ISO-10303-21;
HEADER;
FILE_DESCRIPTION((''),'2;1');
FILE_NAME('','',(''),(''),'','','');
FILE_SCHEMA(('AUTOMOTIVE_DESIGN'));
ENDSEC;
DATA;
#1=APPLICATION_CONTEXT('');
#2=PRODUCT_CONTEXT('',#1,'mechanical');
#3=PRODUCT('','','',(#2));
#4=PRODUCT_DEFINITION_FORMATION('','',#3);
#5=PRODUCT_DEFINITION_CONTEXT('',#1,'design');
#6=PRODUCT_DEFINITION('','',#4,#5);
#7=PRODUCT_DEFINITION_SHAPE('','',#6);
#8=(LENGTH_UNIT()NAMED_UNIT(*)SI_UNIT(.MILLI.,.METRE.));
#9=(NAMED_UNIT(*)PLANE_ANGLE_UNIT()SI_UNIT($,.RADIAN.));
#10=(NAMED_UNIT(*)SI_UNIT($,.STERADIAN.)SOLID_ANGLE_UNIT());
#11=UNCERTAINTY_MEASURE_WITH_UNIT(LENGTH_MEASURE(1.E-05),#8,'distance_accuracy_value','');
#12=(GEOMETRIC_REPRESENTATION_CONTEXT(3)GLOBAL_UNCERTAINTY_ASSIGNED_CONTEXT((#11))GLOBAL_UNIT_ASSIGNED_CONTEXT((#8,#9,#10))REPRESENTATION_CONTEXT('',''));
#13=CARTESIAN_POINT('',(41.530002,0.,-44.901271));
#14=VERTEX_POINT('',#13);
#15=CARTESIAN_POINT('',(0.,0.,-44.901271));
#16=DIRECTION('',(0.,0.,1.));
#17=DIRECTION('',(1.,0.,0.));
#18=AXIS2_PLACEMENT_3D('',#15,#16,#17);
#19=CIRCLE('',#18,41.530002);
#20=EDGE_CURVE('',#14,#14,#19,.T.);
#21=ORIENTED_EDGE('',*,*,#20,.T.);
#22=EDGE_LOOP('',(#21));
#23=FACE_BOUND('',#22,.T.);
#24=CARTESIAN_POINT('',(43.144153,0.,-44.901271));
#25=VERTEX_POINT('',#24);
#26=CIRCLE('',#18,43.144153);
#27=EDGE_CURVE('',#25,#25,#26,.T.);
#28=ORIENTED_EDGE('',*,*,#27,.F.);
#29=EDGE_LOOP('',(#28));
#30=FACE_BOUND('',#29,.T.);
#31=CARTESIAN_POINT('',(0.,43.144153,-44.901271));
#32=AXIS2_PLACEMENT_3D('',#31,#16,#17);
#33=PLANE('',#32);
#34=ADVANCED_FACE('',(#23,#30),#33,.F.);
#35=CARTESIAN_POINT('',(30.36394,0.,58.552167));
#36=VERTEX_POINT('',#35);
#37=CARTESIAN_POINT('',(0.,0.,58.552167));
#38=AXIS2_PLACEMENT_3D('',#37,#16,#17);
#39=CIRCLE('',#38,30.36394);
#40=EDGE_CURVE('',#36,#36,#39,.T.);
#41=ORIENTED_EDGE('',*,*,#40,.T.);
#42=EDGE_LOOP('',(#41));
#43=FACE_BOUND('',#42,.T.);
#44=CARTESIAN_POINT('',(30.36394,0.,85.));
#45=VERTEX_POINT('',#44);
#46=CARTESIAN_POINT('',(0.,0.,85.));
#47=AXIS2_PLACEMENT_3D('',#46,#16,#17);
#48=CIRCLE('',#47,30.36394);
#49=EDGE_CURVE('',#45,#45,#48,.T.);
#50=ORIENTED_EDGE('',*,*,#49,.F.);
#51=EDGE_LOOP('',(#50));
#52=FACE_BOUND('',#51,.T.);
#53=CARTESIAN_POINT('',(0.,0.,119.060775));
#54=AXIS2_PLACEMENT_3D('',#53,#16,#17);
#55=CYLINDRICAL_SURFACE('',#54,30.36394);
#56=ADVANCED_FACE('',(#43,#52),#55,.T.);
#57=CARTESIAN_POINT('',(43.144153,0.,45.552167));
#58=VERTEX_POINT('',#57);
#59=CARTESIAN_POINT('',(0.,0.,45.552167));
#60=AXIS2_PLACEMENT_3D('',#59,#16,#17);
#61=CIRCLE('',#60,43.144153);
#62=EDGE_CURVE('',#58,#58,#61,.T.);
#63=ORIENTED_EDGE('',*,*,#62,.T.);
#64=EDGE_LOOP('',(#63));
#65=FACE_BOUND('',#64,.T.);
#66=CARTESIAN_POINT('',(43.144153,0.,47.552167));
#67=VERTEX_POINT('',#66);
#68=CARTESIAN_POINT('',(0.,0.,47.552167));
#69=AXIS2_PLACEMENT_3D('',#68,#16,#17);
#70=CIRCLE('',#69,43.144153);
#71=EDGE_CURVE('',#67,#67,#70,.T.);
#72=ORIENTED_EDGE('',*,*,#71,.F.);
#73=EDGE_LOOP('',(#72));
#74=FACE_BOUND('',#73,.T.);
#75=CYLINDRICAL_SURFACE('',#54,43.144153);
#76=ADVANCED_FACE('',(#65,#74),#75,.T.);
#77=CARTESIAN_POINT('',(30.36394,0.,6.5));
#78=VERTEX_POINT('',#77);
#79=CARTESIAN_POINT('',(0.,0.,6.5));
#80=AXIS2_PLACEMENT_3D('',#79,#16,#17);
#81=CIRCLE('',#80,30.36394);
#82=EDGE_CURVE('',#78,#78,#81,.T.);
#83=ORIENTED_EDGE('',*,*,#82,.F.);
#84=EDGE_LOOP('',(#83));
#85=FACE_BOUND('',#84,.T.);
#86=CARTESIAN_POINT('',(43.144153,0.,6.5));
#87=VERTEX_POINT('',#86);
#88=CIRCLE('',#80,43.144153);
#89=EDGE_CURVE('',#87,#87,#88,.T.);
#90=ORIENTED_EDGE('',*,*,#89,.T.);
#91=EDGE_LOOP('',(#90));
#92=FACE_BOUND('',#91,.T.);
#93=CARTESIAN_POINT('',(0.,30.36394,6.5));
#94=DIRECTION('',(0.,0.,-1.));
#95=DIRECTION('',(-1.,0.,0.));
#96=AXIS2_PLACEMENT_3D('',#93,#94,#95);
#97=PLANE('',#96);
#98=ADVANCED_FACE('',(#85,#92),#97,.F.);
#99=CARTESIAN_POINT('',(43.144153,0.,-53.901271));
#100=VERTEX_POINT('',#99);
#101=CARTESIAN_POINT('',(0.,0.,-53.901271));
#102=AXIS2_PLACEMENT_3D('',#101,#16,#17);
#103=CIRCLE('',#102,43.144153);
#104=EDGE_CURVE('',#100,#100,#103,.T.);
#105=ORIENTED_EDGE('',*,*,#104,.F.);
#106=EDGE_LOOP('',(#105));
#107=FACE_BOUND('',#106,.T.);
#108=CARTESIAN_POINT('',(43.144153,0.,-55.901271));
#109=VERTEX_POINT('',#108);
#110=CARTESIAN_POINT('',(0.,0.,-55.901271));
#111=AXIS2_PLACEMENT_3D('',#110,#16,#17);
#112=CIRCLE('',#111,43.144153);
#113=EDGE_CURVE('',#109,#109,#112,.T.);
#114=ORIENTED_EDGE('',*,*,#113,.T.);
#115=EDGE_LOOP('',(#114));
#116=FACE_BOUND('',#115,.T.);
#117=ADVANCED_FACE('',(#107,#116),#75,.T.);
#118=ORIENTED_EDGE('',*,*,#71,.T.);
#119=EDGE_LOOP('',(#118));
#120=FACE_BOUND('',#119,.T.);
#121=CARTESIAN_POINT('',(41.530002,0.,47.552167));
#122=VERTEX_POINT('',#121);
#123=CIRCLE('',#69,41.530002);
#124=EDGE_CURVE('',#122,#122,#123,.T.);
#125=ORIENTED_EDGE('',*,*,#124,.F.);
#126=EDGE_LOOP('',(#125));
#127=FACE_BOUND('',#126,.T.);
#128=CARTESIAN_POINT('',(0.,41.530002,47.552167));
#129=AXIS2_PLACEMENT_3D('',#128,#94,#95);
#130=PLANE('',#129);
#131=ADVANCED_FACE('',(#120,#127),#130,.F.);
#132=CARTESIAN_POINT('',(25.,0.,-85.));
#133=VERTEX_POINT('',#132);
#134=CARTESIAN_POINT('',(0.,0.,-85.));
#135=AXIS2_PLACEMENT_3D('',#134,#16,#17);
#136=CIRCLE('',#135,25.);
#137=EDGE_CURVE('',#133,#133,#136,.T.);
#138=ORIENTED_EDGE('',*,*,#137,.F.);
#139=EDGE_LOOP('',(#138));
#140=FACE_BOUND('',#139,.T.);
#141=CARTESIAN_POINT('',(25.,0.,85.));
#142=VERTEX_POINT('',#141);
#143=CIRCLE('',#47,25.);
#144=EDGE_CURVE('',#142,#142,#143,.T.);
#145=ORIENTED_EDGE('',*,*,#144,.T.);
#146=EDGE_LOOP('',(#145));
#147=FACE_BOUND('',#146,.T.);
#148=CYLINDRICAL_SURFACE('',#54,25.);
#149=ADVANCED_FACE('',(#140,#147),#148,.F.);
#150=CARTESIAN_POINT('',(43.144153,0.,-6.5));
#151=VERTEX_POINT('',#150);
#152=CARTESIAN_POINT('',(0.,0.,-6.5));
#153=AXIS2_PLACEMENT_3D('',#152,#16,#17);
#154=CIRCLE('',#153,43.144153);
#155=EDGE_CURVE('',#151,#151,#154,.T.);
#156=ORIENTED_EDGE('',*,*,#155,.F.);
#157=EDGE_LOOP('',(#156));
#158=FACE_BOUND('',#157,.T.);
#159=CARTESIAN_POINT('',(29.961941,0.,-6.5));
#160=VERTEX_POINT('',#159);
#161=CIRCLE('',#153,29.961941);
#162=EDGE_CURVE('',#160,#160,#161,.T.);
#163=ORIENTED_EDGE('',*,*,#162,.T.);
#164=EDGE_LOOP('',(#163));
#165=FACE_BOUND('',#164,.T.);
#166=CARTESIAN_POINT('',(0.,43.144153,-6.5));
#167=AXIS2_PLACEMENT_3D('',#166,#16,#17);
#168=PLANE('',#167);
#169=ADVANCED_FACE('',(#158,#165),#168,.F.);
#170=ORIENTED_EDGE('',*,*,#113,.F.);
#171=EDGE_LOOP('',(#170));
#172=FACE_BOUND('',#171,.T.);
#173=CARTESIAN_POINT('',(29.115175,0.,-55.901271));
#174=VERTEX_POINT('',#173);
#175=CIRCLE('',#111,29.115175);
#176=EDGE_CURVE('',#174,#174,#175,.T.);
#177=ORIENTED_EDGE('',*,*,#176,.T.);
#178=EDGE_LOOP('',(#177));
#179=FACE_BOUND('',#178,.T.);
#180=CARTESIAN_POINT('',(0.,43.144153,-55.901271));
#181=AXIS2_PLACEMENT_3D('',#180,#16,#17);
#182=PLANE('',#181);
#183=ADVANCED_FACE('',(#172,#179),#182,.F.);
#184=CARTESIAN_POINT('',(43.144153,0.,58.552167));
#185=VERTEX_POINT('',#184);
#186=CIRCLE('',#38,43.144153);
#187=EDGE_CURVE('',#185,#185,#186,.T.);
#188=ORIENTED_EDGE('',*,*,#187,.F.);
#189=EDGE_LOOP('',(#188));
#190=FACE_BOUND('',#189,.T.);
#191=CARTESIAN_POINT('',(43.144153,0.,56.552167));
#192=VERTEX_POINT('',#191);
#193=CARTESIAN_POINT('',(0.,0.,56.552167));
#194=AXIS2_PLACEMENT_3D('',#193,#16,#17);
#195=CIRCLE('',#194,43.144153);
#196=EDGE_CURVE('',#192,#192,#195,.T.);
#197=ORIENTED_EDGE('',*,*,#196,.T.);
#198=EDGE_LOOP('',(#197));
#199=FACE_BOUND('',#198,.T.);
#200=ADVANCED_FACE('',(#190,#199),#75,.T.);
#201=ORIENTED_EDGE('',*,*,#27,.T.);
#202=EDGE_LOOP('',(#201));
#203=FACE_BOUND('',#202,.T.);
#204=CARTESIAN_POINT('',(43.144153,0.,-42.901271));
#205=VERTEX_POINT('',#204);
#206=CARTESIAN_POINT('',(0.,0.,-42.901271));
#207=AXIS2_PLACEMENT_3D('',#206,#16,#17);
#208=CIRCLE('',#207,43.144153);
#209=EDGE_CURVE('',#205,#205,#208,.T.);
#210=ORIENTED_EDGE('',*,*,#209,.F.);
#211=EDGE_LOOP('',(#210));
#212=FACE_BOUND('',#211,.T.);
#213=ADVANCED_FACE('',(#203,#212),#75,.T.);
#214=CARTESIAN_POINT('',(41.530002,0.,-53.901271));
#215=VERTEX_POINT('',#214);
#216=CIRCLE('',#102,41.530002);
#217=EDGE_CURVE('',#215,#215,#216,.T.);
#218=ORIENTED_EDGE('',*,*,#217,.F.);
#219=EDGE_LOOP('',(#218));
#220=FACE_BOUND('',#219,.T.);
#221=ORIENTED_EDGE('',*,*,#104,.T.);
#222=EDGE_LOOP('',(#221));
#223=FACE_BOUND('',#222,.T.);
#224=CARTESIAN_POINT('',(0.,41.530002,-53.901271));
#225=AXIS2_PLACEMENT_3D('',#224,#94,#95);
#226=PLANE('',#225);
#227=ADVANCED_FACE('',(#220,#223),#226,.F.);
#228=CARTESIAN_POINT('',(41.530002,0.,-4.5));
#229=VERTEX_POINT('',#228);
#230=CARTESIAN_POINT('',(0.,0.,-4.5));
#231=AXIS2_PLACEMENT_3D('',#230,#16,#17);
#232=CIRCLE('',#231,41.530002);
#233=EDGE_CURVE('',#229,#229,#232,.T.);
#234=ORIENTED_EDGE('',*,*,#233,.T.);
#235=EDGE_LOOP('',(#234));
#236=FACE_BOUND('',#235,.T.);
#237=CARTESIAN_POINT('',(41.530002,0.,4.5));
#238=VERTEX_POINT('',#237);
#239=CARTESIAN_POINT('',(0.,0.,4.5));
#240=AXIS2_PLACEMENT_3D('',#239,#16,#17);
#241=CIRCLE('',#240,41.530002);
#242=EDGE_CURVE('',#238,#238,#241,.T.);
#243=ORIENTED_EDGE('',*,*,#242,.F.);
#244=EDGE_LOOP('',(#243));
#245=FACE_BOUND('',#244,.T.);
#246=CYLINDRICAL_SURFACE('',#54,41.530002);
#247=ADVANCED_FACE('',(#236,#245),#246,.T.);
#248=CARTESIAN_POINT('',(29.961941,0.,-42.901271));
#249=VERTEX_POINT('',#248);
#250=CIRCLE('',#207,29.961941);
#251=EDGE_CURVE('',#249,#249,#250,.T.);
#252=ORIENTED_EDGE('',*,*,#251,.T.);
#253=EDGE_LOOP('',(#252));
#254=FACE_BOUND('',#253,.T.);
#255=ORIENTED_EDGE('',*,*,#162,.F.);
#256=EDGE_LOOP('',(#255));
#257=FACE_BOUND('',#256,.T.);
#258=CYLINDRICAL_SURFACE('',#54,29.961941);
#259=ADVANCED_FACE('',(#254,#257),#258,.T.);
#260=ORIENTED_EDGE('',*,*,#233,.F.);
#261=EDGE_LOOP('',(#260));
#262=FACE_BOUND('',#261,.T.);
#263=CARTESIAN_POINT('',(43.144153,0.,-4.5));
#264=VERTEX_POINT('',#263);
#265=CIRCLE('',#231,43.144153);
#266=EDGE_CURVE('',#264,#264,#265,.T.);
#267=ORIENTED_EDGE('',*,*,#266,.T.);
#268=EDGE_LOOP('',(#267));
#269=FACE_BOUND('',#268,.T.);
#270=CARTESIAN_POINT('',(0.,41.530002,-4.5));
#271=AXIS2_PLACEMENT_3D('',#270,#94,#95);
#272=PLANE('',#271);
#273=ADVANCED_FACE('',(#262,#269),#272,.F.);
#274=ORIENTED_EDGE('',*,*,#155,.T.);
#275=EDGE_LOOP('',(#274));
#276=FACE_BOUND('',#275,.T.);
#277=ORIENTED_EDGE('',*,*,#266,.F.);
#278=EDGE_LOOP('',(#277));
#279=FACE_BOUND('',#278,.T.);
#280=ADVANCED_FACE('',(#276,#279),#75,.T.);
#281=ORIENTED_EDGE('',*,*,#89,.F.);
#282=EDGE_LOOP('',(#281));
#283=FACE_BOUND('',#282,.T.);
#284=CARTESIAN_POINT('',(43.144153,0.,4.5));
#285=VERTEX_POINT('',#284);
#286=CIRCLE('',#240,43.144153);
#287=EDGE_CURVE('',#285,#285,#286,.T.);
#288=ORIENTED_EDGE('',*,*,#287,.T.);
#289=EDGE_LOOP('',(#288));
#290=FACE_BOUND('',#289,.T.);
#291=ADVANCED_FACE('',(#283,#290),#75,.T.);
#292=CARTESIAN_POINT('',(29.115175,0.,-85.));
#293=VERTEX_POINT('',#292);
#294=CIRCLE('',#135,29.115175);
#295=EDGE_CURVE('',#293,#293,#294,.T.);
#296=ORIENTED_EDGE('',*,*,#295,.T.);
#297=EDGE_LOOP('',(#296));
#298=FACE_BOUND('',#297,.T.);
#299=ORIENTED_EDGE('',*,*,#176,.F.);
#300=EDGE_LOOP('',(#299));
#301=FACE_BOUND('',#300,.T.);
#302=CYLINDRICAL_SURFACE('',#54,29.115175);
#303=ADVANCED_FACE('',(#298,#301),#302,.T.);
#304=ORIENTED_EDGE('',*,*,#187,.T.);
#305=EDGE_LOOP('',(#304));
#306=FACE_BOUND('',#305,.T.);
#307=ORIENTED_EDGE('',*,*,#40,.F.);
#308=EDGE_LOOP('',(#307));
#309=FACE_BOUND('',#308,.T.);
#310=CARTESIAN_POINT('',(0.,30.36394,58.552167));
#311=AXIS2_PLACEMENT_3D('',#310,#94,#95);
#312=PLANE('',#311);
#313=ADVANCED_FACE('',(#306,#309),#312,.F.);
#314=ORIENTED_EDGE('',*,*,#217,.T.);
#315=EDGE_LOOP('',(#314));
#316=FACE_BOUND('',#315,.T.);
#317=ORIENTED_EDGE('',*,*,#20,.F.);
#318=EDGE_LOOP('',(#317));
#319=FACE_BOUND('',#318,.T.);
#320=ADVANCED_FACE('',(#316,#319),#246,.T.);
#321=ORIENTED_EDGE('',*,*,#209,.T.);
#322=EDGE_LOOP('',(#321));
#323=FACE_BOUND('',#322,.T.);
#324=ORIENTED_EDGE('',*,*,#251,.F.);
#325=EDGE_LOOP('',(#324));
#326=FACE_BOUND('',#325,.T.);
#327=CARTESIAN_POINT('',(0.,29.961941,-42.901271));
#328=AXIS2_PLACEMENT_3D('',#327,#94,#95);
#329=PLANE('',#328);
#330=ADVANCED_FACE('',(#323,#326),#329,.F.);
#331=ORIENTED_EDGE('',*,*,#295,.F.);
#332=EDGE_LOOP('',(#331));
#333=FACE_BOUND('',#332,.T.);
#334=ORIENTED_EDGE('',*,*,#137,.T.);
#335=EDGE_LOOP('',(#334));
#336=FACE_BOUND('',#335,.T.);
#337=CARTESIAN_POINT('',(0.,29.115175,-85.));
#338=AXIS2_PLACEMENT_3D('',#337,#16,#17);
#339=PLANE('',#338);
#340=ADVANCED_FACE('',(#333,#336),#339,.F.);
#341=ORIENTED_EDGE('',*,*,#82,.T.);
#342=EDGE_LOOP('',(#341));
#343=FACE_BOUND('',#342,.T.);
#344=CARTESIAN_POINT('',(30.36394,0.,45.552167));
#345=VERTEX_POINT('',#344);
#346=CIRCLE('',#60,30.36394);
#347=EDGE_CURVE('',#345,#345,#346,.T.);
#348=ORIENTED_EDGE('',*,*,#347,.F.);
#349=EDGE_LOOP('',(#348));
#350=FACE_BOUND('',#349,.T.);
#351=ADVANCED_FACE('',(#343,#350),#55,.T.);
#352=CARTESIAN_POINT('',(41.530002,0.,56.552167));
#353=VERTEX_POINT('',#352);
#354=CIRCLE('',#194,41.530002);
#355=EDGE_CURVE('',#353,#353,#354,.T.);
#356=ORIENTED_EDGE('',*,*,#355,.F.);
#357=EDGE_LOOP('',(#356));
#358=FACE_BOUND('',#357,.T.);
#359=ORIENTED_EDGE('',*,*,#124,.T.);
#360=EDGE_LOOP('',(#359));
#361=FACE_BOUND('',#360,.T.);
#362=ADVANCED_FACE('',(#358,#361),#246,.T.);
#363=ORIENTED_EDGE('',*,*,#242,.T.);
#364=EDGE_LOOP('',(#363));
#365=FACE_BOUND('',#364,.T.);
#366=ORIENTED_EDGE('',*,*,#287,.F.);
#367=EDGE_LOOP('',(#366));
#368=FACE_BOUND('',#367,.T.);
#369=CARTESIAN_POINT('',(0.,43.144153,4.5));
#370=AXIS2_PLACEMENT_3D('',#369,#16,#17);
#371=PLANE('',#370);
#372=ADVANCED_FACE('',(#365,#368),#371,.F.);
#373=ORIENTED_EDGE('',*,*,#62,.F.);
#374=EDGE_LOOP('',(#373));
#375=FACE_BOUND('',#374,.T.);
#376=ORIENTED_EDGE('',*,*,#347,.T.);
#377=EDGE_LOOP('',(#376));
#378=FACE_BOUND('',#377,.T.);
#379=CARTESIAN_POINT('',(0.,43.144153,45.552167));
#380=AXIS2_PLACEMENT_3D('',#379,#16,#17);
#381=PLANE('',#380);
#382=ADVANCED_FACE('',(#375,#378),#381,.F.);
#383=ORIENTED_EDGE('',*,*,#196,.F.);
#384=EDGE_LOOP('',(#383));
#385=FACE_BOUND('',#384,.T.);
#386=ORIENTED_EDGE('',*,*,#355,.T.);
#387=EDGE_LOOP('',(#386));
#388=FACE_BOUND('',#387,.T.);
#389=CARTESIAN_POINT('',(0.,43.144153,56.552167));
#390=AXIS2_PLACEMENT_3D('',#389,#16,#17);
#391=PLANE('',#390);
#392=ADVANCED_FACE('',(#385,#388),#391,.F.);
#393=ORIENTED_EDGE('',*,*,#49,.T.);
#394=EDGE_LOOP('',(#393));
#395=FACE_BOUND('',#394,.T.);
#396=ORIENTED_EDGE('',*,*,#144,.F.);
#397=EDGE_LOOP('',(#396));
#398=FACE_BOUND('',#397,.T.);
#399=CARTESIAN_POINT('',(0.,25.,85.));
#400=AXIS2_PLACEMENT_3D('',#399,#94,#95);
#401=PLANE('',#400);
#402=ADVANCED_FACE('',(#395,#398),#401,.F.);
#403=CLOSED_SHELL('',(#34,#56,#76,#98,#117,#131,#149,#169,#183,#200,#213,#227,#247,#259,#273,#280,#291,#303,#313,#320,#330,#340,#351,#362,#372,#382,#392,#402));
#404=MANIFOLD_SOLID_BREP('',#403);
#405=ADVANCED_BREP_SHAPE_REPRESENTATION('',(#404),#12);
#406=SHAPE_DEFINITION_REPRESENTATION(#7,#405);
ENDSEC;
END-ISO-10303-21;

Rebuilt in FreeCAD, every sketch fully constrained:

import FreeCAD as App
import Part
import Sketcher
from FreeCAD import Vector


def add_polygon(sketch, points):
    """Adds a closed chain of lines whose ends are joined by coincident constraints."""
    first, n = sketch.GeometryCount, len(points)
    for a, b in zip(points, points[1:] + points[:1]):
        sketch.addGeometry(Part.LineSegment(App.Vector(*a, 0), App.Vector(*b, 0)), False)
    for i in range(n):
        sketch.addConstraint(Sketcher.Constraint("Coincident", first + i, 2, first + (i + 1) % n, 1))

doc = App.newDocument("Part")
params = doc.addObject("Spreadsheet::Sheet", "Params")
for row, (alias, value) in enumerate([
    ("sketch1_height", "170 mm"),
    ("sketch1_height2", "2 mm"),
    ("sketch1_height3", "9 mm"),
    ("revolution_angle", "360 deg"),
], start=1):
    params.set(f"A{row}", alias)
    params.set(f"B{row}", "=" + value)
    params.setAlias(f"B{row}", alias)

body = doc.addObject("PartDesign::Body", "Body")

# Sketch on YZ plane
sketch1 = body.newObject("Sketcher::SketchObject", "Sketch")
sketch1.AttachmentSupport = (doc.getObject("YZ_Plane"), [""])
sketch1.MapMode = "FlatFace"
add_polygon(sketch1, [(25, 85), (25, -85), (29.1, -85), (29.1, -55.9), (43.1, -55.9), (43.1, -53.9), (41.5, -53.9), (41.5, -44.9), (43.1, -44.9), (43.1, -42.9), (30, -42.9), (30, -6.5), (43.1, -6.5), (43.1, -4.5), (41.5, -4.5), (41.5, 4.5), (43.1, 4.5), (43.1, 6.5), (30.4, 6.5), (30.4, 45.6), (43.1, 45.6), (43.1, 47.6), (41.5, 47.6), (41.5, 56.6), (43.1, 56.6), (43.1, 58.6), (30.4, 58.6), (30.4, 85)])  # lines 0-27
sketch1.addConstraint([
    Sketcher.Constraint("Vertical", 0),
    Sketcher.Constraint("Horizontal", 1),
    Sketcher.Constraint("Vertical", 2),
    Sketcher.Constraint("Horizontal", 3),
    Sketcher.Constraint("Vertical", 4),
    Sketcher.Constraint("Horizontal", 5),
    Sketcher.Constraint("Vertical", 6),
    Sketcher.Constraint("Horizontal", 7),
    Sketcher.Constraint("Vertical", 8),
    Sketcher.Constraint("Horizontal", 9),
    Sketcher.Constraint("Vertical", 10),
    Sketcher.Constraint("Horizontal", 11),
    Sketcher.Constraint("Vertical", 12),
    Sketcher.Constraint("Horizontal", 13),
    Sketcher.Constraint("Vertical", 14),
    Sketcher.Constraint("Horizontal", 15),
    Sketcher.Constraint("Vertical", 16),
    Sketcher.Constraint("Horizontal", 17),
    Sketcher.Constraint("Vertical", 18),
    Sketcher.Constraint("Horizontal", 19),
    Sketcher.Constraint("Vertical", 20),
    Sketcher.Constraint("Horizontal", 21),
    Sketcher.Constraint("Vertical", 22),
    Sketcher.Constraint("Horizontal", 23),
    Sketcher.Constraint("Vertical", 24),
    Sketcher.Constraint("Horizontal", 25),
    Sketcher.Constraint("Vertical", 26),
    Sketcher.Constraint("Horizontal", 27),
    Sketcher.Constraint("Symmetric", 12, 2, 15, 2, -1),
    Sketcher.Constraint("Vertical", 4, 2, 7, 2),
    Sketcher.Constraint("Vertical", 8, 2, 11, 2),
    Sketcher.Constraint("Vertical", 6, 2, 13, 2),
    Sketcher.Constraint("Vertical", 16, 2, 19, 2),
    Sketcher.Constraint("Vertical", 14, 2, 21, 2),
    Sketcher.Constraint("Vertical", 20, 2, 23, 2),
    Sketcher.Constraint("Vertical", 18, 2, 25, 2),
    Sketcher.Constraint("Equal", 4, 8),
    Sketcher.Constraint("Equal", 8, 12),
    Sketcher.Constraint("Equal", 6, 14),
    Sketcher.Constraint("Equal", 12, 16),
    Sketcher.Constraint("Equal", 16, 20),
    Sketcher.Constraint("Equal", 14, 22),
    Sketcher.Constraint("Equal", 20, 24),
    Sketcher.Constraint("DistanceY", 0, 2, 0, 1, 170.0),
    Sketcher.Constraint("DistanceY", 4, 1, 4, 2, 2.0),
    Sketcher.Constraint("DistanceY", 6, 1, 6, 2, 9.0),
    Sketcher.Constraint("DistanceX", -1, 1, 0, 2, 25.0),
    Sketcher.Constraint("DistanceY", 0, 2, -1, 1, 85.0),
    Sketcher.Constraint("DistanceX", -1, 1, 5, 2, 41.530002),
    Sketcher.Constraint("DistanceX", 10, 2, 17, 2, 0.402),
    Sketcher.Constraint("DistanceX", 3, 1, 3, 2, 14.028978),
    Sketcher.Constraint("DistanceX", 5, 2, 5, 1, 1.614152),
    Sketcher.Constraint("DistanceX", 27, 2, 27, 1, 5.36394),
    Sketcher.Constraint("DistanceY", 2, 1, 2, 2, 29.098729),
    Sketcher.Constraint("DistanceY", 18, 1, 18, 2, 39.052167),
])
sketch1.setExpression("Constraints[71]", "Params.sketch1_height")
sketch1.setExpression("Constraints[72]", "Params.sketch1_height2")
sketch1.setExpression("Constraints[73]", "Params.sketch1_height3")
revolution = body.newObject("PartDesign::Revolution", "Revolution")
revolution.Profile = sketch1
revolution.ReferenceAxis = (sketch1, ["V_Axis"])
revolution.setExpression("Angle", "Params.revolution_angle")

doc.recompute()
